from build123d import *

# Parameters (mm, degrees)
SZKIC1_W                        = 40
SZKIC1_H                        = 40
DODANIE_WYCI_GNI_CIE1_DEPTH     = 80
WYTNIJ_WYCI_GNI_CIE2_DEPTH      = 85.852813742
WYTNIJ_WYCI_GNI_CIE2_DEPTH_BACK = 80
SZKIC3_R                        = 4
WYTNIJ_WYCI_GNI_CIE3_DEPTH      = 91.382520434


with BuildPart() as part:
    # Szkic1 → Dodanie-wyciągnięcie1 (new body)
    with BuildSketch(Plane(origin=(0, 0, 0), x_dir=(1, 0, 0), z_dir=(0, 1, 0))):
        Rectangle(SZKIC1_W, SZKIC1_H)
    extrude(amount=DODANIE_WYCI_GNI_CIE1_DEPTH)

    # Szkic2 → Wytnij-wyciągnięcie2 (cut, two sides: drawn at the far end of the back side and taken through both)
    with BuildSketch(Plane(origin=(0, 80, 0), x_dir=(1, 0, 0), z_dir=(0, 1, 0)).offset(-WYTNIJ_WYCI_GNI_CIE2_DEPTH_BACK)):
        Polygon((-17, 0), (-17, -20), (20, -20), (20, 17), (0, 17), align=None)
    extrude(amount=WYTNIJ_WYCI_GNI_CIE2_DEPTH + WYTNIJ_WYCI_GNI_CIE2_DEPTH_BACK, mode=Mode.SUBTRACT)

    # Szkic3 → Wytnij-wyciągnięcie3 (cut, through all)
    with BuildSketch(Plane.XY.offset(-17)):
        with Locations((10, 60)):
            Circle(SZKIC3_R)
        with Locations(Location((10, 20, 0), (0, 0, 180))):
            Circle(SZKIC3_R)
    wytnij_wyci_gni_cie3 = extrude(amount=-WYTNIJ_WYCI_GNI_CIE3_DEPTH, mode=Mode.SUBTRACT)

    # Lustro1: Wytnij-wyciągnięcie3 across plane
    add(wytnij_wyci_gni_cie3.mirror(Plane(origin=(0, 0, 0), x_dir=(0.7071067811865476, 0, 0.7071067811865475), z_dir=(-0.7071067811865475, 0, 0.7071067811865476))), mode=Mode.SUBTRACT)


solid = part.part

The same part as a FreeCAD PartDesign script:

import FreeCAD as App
import Part
import Sketcher
Q = App.Units.Quantity


def add_polygon(sketch, points):
    """Adds a closed chain of lines whose ends are joined by coincident constraints."""
    first, n = sketch.GeometryCount, len(points)
    for a, b in zip(points, points[1:] + points[:1]):
        sketch.addGeometry(Part.LineSegment(App.Vector(*a, 0), App.Vector(*b, 0)), False)
    for i in range(n):
        sketch.addConstraint(Sketcher.Constraint("Coincident", first + i, 2, first + (i + 1) % n, 1))

doc = App.newDocument("Part")
body = doc.addObject("PartDesign::Body", "Body")

# Sketch on XZ plane
sketch1 = doc.addObject("Sketcher::SketchObject", "Sketch")
body.addObject(sketch1)
sketch1.AttachmentSupport = (doc.XZ_Plane, [""])
sketch1.MapMode = "FlatFace"
add_polygon(sketch1, [(-20, -20), (-20, 20), (20, 20), (20, -20)])  # lines 0-3
sketch1.addConstraint([
    Sketcher.Constraint("Vertical", 0),
    Sketcher.Constraint("Horizontal", 1),
    Sketcher.Constraint("Vertical", 2),
    Sketcher.Constraint("Horizontal", 3),
    Sketcher.Constraint("Symmetric", 0, 2, 2, 2, -1, 1),
    Sketcher.Constraint("Equal", 3, 0),
    Sketcher.Constraint("DistanceX", 1, 1, 1, 2, Q("40 mm")),
])
pad1 = doc.addObject("PartDesign::Pad", "Pad")
body.addObject(pad1)
pad1.Profile = sketch1
pad1.Length = 80
pad1.Reversed = True

# Sketch on XZ plane
sketch2 = doc.addObject("Sketcher::SketchObject", "Sketch001")
body.addObject(sketch2)
sketch2.AttachmentSupport = (doc.XZ_Plane, [""])
sketch2.MapMode = "FlatFace"
sketch2.AttachmentOffset = App.Placement(App.Vector(0, 0, -80), App.Rotation())
add_polygon(sketch2, [(-17, 0), (-17, 20), (20, 20), (20, -17), (0, -17)])  # lines 0-4
sketch2.addConstraint([
    Sketcher.Constraint("Vertical", 0),
    Sketcher.Constraint("Horizontal", 1),
    Sketcher.Constraint("Vertical", 2),
    Sketcher.Constraint("Horizontal", 3),
    Sketcher.Constraint("PointOnObject", 3, 2, -2),
    Sketcher.Constraint("PointOnObject", 4, 2, -1),
    Sketcher.Constraint("Equal", 3, 0),
    Sketcher.Constraint("Equal", 1, 2),
    Sketcher.Constraint("DistanceX", 1, 1, 1, 2, Q("37 mm")),
    Sketcher.Constraint("DistanceX", 3, 2, 3, 1, Q("20 mm")),
])
pocket1 = doc.addObject("PartDesign::Pocket", "Pocket")
body.addObject(pocket1)
pocket1.Profile = sketch2
pocket1.Type = "ThroughAll"
pocket1.Midplane = True

# Sketch on XY plane
sketch3 = doc.addObject("Sketcher::SketchObject", "Sketch002")
body.addObject(sketch3)
sketch3.AttachmentSupport = (doc.XY_Plane, [""])
sketch3.MapMode = "FlatFace"
sketch3.AttachmentOffset = App.Placement(App.Vector(0, 0, -17), App.Rotation())
sketch3.addGeometry([
    Part.Circle(App.Vector(10, 60, 0), App.Vector(0, 0, 1), 4),
    Part.Circle(App.Vector(10, 20, 0), App.Vector(0, 0, 1), 4),
], False)
sketch3.addConstraint([
    Sketcher.Constraint("Equal", 0, 1),
    Sketcher.Constraint("Vertical", 0, 3, 1, 3),
    Sketcher.Constraint("Diameter", 0, Q("8 mm")),
    Sketcher.Constraint("DistanceX", -1, 1, 0, 3, Q("10 mm")),
    Sketcher.Constraint("DistanceY", -1, 1, 0, 3, Q("60 mm")),
    Sketcher.Constraint("DistanceY", -1, 1, 1, 3, Q("20 mm")),
])
pocket2 = doc.addObject("PartDesign::Pocket", "Pocket001")
body.addObject(pocket2)
pocket2.Profile = sketch3
pocket2.Type = "ThroughAll"
doc.recompute()

datumplane = doc.addObject("PartDesign::Plane", "DatumPlane")
body.addObject(datumplane)
datumplane.Placement = App.Placement(App.Vector(0, 0, 0), App.Rotation(App.Vector(-0.707106781, 0, -0.707106781), App.Vector(0, -1, 0), App.Vector(-0.707106781, 0, 0.707106781), "ZXY"))
mirrored = doc.addObject("PartDesign::Mirrored", "Mirrored")
body.addObject(mirrored)
mirrored.Originals = [pocket2]
mirrored.MirrorPlane = (datumplane, [""])
body.Tip = mirrored

doc.recompute()
